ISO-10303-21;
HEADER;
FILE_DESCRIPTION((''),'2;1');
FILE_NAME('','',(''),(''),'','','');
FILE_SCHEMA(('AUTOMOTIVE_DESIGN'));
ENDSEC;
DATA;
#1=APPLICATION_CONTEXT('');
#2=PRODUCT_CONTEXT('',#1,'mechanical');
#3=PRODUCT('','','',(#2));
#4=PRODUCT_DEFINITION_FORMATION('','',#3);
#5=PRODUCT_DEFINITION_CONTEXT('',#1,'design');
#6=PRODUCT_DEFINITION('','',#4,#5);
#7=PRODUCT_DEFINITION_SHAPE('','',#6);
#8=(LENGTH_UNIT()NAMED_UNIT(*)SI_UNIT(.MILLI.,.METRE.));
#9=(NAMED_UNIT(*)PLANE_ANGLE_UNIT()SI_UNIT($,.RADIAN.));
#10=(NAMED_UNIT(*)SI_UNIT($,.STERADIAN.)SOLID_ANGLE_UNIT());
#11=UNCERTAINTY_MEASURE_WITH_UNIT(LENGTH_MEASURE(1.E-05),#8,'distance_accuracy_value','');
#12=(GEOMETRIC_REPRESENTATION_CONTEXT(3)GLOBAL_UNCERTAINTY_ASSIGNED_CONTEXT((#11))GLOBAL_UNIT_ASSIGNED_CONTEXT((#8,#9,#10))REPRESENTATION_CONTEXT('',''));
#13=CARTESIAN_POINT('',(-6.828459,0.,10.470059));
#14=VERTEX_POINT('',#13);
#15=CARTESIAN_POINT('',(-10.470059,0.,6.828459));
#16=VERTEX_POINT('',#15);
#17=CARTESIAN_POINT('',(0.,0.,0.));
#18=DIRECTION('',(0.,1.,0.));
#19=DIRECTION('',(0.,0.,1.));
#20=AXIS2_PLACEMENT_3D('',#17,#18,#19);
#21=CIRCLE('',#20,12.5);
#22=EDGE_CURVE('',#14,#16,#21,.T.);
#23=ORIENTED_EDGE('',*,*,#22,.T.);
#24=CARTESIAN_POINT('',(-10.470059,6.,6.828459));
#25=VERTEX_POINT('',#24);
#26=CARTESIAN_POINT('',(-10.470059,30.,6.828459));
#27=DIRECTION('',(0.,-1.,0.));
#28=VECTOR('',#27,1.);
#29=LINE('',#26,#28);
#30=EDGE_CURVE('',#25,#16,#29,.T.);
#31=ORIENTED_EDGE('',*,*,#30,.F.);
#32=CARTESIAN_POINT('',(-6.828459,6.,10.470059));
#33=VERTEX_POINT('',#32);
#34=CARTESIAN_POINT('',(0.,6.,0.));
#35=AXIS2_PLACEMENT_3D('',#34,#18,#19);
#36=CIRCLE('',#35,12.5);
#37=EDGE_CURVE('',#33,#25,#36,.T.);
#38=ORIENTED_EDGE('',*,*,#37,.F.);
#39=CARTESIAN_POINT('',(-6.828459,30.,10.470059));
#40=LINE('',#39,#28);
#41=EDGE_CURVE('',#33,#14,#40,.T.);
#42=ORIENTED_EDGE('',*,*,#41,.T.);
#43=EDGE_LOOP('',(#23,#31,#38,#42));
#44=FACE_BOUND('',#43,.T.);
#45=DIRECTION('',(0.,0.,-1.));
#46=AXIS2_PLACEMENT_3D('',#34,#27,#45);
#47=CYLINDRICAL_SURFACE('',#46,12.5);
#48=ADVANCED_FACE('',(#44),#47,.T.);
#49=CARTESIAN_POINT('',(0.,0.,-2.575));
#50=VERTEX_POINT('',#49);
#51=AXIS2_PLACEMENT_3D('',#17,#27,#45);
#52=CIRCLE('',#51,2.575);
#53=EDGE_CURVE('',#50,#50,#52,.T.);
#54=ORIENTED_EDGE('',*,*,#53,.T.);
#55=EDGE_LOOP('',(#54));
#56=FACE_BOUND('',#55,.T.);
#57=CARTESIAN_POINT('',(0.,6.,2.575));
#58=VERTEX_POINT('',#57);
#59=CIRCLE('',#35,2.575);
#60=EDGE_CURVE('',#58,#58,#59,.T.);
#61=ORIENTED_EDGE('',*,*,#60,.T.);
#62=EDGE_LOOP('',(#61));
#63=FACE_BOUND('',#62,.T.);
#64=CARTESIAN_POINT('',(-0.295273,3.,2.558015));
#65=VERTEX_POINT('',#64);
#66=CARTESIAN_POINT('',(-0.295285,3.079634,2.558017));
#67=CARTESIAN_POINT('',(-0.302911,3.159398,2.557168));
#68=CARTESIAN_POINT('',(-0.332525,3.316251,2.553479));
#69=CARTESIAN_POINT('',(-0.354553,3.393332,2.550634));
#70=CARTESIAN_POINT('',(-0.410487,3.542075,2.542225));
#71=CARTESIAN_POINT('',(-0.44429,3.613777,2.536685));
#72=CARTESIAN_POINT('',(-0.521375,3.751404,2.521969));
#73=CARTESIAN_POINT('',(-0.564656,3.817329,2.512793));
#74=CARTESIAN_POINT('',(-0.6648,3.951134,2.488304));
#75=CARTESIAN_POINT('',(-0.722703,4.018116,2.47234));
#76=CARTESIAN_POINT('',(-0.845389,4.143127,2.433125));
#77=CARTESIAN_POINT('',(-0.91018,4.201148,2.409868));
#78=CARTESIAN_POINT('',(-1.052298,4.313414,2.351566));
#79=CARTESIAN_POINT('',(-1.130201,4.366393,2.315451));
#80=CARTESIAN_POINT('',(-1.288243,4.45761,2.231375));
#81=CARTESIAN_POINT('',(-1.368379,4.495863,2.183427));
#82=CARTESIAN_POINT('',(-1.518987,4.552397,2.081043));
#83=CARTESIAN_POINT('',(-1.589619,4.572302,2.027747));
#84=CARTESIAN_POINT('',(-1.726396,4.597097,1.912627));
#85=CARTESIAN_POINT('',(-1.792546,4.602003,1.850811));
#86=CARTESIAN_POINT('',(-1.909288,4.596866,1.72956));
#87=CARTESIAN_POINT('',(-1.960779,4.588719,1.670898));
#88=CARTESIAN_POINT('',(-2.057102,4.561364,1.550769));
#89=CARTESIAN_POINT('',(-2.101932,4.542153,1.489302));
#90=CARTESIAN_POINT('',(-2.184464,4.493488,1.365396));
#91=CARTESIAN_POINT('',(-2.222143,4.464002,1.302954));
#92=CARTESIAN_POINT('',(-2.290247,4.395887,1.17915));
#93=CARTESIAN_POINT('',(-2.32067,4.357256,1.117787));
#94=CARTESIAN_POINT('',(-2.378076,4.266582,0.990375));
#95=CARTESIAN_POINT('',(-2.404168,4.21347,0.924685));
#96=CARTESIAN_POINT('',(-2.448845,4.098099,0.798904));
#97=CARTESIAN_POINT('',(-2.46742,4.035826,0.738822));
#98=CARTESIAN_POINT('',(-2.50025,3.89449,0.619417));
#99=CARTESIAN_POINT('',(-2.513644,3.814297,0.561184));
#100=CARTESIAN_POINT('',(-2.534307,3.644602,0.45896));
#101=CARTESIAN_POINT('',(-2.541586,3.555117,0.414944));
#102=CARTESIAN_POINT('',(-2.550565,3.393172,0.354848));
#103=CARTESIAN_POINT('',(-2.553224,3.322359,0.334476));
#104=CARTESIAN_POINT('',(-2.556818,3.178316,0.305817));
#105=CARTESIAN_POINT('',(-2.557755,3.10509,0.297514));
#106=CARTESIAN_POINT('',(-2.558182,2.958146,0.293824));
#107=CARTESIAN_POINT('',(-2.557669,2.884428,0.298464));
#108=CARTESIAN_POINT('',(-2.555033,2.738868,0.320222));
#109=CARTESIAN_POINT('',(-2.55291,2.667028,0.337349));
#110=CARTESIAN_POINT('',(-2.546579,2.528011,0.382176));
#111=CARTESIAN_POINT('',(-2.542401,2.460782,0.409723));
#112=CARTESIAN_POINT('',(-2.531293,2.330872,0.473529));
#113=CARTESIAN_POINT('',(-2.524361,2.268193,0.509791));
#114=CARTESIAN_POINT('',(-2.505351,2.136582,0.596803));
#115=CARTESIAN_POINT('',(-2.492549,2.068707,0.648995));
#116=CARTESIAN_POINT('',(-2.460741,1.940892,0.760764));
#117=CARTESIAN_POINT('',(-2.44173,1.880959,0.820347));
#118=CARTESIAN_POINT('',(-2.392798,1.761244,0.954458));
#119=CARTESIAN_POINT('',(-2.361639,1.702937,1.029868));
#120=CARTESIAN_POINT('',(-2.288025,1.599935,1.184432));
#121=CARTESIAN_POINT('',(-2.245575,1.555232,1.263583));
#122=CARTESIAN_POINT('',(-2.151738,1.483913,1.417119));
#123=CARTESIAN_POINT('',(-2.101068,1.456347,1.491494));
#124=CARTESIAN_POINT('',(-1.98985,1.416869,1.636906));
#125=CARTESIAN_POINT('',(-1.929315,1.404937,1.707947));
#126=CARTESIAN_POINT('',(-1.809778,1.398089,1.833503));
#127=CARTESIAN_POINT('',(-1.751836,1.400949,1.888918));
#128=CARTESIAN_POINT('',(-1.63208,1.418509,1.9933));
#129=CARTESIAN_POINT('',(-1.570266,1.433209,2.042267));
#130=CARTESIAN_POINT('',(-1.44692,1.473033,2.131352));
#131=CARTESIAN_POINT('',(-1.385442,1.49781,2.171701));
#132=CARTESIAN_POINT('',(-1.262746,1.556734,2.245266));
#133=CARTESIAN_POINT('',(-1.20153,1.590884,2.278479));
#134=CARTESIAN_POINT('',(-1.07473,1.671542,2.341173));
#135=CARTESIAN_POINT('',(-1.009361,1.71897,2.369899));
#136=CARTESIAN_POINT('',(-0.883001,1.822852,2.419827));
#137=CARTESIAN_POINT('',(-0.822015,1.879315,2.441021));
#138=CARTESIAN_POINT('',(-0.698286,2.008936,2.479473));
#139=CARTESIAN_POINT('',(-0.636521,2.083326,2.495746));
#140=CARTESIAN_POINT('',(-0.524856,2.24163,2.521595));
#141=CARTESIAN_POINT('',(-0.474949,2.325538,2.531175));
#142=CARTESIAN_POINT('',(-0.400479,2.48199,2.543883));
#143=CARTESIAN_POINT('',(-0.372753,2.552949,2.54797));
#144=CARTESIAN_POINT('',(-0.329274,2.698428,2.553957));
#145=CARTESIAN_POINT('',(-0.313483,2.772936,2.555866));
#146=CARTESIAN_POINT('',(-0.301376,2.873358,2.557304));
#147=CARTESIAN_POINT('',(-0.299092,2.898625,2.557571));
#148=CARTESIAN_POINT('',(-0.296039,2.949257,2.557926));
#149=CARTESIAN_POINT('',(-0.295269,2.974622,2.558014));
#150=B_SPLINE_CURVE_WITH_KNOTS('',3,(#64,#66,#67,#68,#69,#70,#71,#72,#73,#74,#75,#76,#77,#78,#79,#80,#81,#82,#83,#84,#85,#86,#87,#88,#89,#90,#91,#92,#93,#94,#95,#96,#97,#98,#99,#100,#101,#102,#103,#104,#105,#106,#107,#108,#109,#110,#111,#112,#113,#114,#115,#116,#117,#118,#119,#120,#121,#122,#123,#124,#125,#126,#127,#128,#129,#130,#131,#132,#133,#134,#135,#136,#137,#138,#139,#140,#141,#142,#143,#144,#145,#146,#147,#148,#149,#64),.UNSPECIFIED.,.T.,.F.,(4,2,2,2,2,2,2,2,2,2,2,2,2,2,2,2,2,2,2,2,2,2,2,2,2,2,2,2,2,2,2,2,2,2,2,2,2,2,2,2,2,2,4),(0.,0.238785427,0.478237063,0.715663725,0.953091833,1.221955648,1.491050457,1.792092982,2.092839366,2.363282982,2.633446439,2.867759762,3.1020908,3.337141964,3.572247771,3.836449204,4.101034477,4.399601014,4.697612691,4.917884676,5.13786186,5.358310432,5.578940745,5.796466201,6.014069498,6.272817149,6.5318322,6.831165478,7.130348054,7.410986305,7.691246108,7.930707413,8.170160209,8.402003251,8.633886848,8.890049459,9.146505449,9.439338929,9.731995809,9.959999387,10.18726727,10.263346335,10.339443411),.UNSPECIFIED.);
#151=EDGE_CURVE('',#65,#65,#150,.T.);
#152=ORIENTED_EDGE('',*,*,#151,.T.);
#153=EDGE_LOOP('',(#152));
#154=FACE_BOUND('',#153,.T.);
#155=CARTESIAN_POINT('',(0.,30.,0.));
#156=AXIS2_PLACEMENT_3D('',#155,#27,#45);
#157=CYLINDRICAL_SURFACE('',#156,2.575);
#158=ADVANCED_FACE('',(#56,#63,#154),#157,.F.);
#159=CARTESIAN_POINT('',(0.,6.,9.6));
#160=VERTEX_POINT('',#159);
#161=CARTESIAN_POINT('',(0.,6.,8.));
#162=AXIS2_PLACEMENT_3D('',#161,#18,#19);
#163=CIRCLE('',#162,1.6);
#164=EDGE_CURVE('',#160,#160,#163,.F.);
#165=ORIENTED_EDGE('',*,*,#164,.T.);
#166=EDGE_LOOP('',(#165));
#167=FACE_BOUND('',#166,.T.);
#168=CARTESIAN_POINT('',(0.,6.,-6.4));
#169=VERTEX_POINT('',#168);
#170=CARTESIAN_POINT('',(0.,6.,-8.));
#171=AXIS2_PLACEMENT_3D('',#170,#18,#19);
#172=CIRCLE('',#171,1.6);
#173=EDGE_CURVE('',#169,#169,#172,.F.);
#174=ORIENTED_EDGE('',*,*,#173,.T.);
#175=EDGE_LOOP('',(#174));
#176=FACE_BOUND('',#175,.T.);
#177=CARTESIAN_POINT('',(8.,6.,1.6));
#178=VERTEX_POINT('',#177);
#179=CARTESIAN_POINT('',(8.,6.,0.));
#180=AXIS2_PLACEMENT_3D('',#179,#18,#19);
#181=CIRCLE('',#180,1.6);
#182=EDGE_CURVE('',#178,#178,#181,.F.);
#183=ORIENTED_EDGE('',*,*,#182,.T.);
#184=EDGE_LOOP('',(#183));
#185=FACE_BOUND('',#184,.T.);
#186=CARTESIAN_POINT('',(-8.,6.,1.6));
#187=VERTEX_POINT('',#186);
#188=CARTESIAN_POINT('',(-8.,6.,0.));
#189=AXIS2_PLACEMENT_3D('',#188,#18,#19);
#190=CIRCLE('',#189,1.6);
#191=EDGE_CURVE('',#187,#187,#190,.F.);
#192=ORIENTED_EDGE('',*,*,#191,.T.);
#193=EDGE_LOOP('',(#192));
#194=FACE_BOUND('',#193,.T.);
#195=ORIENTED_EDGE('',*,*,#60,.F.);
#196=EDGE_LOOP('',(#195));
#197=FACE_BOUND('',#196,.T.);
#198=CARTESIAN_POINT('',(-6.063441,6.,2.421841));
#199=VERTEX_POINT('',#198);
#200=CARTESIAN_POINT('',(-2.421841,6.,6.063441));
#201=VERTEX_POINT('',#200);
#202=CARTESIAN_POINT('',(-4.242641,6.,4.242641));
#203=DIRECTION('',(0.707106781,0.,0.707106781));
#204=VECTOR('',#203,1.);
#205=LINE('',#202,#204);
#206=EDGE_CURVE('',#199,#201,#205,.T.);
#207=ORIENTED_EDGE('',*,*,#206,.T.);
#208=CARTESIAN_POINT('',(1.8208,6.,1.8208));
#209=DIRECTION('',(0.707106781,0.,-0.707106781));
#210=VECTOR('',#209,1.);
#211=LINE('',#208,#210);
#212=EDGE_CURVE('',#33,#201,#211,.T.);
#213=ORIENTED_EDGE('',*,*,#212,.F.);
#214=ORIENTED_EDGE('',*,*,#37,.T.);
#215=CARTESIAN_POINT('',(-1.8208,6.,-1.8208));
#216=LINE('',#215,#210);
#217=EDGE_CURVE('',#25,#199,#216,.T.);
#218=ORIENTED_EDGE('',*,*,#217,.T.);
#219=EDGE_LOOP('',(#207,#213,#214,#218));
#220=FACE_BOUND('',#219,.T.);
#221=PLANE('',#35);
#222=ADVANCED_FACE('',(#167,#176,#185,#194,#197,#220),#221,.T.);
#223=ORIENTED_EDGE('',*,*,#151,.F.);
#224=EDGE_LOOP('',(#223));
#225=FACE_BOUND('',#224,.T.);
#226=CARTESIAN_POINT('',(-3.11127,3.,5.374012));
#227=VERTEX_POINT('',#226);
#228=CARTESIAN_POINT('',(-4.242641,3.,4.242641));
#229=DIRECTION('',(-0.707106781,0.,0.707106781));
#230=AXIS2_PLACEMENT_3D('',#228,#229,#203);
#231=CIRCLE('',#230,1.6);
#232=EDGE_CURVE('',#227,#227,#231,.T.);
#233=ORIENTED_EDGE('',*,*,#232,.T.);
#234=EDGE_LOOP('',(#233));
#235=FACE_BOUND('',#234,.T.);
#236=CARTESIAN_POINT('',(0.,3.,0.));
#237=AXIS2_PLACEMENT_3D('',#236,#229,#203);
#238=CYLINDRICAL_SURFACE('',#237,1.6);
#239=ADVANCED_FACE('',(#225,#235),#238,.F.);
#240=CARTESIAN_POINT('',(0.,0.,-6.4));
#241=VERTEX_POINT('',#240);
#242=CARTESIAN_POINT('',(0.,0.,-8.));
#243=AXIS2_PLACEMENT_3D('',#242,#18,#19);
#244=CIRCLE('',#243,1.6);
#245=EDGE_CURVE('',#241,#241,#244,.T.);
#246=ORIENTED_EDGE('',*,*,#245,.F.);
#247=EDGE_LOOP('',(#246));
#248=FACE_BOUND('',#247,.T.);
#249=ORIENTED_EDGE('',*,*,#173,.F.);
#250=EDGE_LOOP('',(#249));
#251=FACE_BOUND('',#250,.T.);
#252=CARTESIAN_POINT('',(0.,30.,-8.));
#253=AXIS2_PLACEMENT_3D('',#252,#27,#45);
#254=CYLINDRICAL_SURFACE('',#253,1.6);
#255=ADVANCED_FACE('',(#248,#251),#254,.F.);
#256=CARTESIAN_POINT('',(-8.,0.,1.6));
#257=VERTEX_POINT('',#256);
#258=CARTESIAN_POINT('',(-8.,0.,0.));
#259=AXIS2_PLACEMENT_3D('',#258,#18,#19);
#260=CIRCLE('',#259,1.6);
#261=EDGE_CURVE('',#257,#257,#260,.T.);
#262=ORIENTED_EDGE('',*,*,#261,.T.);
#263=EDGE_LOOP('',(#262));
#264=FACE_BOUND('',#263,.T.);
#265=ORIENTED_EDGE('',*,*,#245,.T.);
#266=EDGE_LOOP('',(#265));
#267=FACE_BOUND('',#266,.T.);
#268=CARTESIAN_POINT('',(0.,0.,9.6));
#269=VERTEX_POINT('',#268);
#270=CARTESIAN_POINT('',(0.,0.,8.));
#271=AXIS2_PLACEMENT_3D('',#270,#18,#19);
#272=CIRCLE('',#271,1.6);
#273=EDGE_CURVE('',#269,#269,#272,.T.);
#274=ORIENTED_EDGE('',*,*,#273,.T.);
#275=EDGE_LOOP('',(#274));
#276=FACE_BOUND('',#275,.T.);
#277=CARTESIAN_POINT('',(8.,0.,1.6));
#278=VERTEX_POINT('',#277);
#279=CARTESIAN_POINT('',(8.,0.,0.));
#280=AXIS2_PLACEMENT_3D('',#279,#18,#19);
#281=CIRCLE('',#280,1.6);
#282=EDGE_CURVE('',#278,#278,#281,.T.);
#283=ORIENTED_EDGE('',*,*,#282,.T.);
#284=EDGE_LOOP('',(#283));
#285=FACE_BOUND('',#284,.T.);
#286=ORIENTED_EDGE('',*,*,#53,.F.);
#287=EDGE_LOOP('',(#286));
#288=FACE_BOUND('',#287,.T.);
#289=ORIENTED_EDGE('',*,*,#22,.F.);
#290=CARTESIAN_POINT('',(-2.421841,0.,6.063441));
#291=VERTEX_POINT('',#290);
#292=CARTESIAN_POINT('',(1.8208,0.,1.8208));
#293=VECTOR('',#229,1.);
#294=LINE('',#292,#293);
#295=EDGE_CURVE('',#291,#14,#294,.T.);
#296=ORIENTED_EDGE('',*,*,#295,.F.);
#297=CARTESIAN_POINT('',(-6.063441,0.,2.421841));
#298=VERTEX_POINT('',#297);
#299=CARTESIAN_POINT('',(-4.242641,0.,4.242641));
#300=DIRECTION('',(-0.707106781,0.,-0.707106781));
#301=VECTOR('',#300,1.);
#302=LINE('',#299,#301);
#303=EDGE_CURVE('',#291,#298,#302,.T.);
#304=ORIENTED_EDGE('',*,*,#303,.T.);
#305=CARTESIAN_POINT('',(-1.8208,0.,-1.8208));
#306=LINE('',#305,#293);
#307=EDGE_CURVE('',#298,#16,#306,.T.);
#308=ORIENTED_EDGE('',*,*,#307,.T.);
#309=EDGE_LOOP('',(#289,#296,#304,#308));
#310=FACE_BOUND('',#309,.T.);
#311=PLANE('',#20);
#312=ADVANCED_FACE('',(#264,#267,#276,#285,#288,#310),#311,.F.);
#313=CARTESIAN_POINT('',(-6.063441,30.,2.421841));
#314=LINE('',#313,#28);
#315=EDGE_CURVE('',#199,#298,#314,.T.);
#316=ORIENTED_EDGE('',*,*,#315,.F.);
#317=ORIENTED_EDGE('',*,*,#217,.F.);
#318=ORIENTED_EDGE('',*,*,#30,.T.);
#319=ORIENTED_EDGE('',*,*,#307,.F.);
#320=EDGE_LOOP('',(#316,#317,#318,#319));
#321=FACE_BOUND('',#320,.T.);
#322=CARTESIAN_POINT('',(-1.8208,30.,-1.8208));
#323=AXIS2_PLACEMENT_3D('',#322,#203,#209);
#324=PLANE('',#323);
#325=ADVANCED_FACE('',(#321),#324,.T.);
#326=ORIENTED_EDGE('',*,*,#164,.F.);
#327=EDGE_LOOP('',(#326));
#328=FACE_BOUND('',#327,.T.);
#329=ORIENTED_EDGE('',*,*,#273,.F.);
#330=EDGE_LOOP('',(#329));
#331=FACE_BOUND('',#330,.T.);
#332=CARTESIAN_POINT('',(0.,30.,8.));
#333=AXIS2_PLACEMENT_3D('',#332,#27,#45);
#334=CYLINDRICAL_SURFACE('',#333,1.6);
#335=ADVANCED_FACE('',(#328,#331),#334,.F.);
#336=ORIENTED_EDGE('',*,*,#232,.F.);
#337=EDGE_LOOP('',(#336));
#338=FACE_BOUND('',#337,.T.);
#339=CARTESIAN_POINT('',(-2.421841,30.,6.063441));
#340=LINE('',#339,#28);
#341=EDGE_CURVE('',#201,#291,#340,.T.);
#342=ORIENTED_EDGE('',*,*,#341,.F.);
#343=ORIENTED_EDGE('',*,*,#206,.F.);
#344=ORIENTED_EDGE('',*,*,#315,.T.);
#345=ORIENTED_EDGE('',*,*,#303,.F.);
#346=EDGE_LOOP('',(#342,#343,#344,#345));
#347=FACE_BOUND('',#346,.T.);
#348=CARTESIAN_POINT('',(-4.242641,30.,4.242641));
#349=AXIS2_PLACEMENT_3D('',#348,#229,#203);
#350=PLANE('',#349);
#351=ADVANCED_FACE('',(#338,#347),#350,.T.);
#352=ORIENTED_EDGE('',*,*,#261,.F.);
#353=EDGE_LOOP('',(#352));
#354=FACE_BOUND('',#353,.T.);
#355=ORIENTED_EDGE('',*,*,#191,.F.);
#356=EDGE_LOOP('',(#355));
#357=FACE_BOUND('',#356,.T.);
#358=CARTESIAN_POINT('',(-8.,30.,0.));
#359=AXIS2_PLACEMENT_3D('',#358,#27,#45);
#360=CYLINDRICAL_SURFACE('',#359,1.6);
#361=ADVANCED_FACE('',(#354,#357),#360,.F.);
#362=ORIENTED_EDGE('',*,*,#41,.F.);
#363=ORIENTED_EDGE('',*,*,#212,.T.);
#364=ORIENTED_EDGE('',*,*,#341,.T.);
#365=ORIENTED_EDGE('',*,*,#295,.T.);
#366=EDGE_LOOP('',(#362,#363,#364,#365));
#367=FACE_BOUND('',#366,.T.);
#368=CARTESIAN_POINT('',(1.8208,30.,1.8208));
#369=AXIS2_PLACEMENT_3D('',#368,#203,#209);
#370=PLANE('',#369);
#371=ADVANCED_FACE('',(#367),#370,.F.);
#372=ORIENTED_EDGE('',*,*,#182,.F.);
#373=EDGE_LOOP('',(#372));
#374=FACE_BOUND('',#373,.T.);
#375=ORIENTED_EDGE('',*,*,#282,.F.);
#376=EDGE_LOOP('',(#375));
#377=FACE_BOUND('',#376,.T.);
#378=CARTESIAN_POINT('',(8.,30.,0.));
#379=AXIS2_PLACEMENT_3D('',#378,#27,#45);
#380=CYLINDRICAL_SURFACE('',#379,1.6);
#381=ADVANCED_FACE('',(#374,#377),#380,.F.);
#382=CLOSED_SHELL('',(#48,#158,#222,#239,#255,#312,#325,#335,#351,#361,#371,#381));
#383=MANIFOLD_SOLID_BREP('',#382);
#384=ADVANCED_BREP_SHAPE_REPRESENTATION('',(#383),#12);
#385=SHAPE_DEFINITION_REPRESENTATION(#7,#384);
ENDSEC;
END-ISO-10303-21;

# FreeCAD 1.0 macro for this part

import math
import FreeCAD as App
import Part
import Sketcher

V = App.Vector
Q = App.Units.Quantity

doc = App.newDocument("Part")
body = doc.addObject("PartDesign::Body", "Body")

sketch1 = body.newObject("Sketcher::SketchObject", "Sketch")
sketch1.AttachmentSupport = (doc.getObject("XZ_Plane"), [""])
sketch1.MapMode = "FlatFace"
sketch1.addGeometry(Part.Circle(V(0, 0, 0), V(0, 0, 1), 12.5), False)
sketch1.addConstraint([
    Sketcher.Constraint("Coincident", 0, 3, -1, 1),
    Sketcher.Constraint("Diameter", 0, 25.0),
])
pad1 = body.newObject("PartDesign::Pad", "Pad")
pad1.Profile = sketch1
pad1.Length = 6
pad1.Reversed = True

sketch2 = body.newObject("Sketcher::SketchObject", "Sketch001")
sketch2.AttachmentSupport = (doc.getObject("XZ_Plane"), [""])
sketch2.MapMode = "FlatFace"
sketch2.addGeometry([
    Part.Circle(V(0, -8, 0), V(0, 0, 1), 1.6),
    Part.Circle(V(8, 0, 0), V(0, 0, 1), 1.6),
    Part.Circle(V(0, 8, 0), V(0, 0, 1), 1.6),
    Part.Circle(V(-8, 0, 0), V(0, 0, 1), 1.6),
], False)
sketch2.addConstraint([
    Sketcher.Constraint("Equal", 0, 1),
    Sketcher.Constraint("Equal", 1, 2),
    Sketcher.Constraint("Equal", 2, 3),
    Sketcher.Constraint("Symmetric", 0, 3, 2, 3, -1, 1),
    Sketcher.Constraint("Symmetric", 1, 3, 3, 3, -1, 1),
    Sketcher.Constraint("PointOnObject", 0, 3, -2),
    Sketcher.Constraint("PointOnObject", 1, 3, -1),
    Sketcher.Constraint("Diameter", 0, 3.2),
    Sketcher.Constraint("DistanceY", 0, 3, -1, 1, 8.0),
    Sketcher.Constraint("DistanceX", -1, 1, 1, 3, 8.0),
])
pocket1 = body.newObject("PartDesign::Pocket", "Pocket")
pocket1.Profile = sketch2
pocket1.Length = 30

sketch3 = body.newObject("Sketcher::SketchObject", "Sketch002")
sketch3.AttachmentSupport = (doc.getObject("XZ_Plane"), [""])
sketch3.MapMode = "FlatFace"
sketch3.addGeometry([
    Part.ArcOfCircle(Part.Circle(V(0, 0, 0), V(0, 0, 1), 12.5), math.radians(135), math.radians(146.888044)),
    Part.LineSegment(V(-10.470059, 6.828459, 0), V(-6.063441, 2.421841, 0)),
    Part.LineSegment(V(-6.063441, 2.421841, 0), V(-4.242641, 4.242641, 0)),
    Part.LineSegment(V(-4.242641, 4.242641, 0), V(-2.421841, 6.063441, 0)),
    Part.LineSegment(V(-2.421841, 6.063441, 0), V(-6.828459, 10.470059, 0)),
    Part.ArcOfCircle(Part.Circle(V(0, 0, 0), V(0, 0, 1), 12.5), math.radians(123.111956), math.radians(135)),
    Part.ArcOfCircle(Part.Circle(V(0, 0, 0), V(0, 0, 1), 2.575), math.radians(90), math.radians(135)),
    Part.ArcOfCircle(Part.Circle(V(0, 0, 0), V(0, 0, 1), 2.575), math.radians(135), math.radians(360)),
    Part.ArcOfCircle(Part.Circle(V(0, 0, 0), V(0, 0, 1), 2.575), math.radians(0), math.radians(90)),
], False)
sketch3.addConstraint([
    Sketcher.Constraint("Coincident", 0, 2, 1, 1),
    Sketcher.Constraint("Coincident", 1, 2, 2, 1),
    Sketcher.Constraint("Coincident", 2, 2, 3, 1),
    Sketcher.Constraint("Coincident", 3, 2, 4, 1),
    Sketcher.Constraint("Coincident", 4, 2, 5, 1),
    Sketcher.Constraint("Tangent", 5, 2, 0, 1),
    Sketcher.Constraint("Tangent", 6, 2, 7, 1),
    Sketcher.Constraint("Tangent", 7, 2, 8, 1),
    Sketcher.Constraint("Tangent", 8, 2, 6, 1),
    Sketcher.Constraint("Coincident", 0, 3, -1, 1),
    Sketcher.Constraint("Coincident", 6, 3, -1, 1),
    Sketcher.Constraint("Equal", 0, 5),
    Sketcher.Constraint("PointOnObject", 7, 2, -1),
    Sketcher.Constraint("PointOnObject", 8, 2, -2),
    Sketcher.Constraint("Perpendicular", 1, 2),
    Sketcher.Constraint("Parallel", 2, 3),
    Sketcher.Constraint("Perpendicular", 3, 4),
    Sketcher.Constraint("Equal", 2, 3),
    Sketcher.Constraint("Equal", 1, 4),
    Sketcher.Constraint("Radius", 0, 12.5),
    Sketcher.Constraint("Angle", 1, Q("-45 deg")),
    Sketcher.Constraint("Radius", 6, 2.575),
    Sketcher.Constraint("Distance", 2, 2.575),
    Sketcher.Constraint("Distance", 1, 6.2319),
    Sketcher.Constraint("DistanceX", 6, 2, -1, 1, 1.8208),
    Sketcher.Constraint("DistanceX", 5, 2, -1, 1, 8.838835),
])
pocket2 = body.newObject("PartDesign::Pocket", "Pocket001")
pocket2.Profile = sketch3
pocket2.Length = 30

sketch4 = body.newObject("Sketcher::SketchObject", "Sketch003")
sketch4.Placement = App.Placement(V(-4.242641, 0, 4.242641), App.Rotation(V(0.707106781, 0, 0.707106781), V(0, 0.999999999, 0), V(-0.707106781, 0, 0.707106781), "ZXY"))
sketch4.addGeometry(Part.Circle(V(0, 3, 0), V(0, 0, 1), 1.6), False)
sketch4.addConstraint([
    Sketcher.Constraint("PointOnObject", 0, 3, -2),
    Sketcher.Constraint("Diameter", 0, 3.2),
    Sketcher.Constraint("DistanceY", -1, 1, 0, 3, 3.0),
])
pocket3 = body.newObject("PartDesign::Pocket", "Pocket002")
pocket3.Profile = sketch4
pocket3.Length = 6

doc.recompute()
